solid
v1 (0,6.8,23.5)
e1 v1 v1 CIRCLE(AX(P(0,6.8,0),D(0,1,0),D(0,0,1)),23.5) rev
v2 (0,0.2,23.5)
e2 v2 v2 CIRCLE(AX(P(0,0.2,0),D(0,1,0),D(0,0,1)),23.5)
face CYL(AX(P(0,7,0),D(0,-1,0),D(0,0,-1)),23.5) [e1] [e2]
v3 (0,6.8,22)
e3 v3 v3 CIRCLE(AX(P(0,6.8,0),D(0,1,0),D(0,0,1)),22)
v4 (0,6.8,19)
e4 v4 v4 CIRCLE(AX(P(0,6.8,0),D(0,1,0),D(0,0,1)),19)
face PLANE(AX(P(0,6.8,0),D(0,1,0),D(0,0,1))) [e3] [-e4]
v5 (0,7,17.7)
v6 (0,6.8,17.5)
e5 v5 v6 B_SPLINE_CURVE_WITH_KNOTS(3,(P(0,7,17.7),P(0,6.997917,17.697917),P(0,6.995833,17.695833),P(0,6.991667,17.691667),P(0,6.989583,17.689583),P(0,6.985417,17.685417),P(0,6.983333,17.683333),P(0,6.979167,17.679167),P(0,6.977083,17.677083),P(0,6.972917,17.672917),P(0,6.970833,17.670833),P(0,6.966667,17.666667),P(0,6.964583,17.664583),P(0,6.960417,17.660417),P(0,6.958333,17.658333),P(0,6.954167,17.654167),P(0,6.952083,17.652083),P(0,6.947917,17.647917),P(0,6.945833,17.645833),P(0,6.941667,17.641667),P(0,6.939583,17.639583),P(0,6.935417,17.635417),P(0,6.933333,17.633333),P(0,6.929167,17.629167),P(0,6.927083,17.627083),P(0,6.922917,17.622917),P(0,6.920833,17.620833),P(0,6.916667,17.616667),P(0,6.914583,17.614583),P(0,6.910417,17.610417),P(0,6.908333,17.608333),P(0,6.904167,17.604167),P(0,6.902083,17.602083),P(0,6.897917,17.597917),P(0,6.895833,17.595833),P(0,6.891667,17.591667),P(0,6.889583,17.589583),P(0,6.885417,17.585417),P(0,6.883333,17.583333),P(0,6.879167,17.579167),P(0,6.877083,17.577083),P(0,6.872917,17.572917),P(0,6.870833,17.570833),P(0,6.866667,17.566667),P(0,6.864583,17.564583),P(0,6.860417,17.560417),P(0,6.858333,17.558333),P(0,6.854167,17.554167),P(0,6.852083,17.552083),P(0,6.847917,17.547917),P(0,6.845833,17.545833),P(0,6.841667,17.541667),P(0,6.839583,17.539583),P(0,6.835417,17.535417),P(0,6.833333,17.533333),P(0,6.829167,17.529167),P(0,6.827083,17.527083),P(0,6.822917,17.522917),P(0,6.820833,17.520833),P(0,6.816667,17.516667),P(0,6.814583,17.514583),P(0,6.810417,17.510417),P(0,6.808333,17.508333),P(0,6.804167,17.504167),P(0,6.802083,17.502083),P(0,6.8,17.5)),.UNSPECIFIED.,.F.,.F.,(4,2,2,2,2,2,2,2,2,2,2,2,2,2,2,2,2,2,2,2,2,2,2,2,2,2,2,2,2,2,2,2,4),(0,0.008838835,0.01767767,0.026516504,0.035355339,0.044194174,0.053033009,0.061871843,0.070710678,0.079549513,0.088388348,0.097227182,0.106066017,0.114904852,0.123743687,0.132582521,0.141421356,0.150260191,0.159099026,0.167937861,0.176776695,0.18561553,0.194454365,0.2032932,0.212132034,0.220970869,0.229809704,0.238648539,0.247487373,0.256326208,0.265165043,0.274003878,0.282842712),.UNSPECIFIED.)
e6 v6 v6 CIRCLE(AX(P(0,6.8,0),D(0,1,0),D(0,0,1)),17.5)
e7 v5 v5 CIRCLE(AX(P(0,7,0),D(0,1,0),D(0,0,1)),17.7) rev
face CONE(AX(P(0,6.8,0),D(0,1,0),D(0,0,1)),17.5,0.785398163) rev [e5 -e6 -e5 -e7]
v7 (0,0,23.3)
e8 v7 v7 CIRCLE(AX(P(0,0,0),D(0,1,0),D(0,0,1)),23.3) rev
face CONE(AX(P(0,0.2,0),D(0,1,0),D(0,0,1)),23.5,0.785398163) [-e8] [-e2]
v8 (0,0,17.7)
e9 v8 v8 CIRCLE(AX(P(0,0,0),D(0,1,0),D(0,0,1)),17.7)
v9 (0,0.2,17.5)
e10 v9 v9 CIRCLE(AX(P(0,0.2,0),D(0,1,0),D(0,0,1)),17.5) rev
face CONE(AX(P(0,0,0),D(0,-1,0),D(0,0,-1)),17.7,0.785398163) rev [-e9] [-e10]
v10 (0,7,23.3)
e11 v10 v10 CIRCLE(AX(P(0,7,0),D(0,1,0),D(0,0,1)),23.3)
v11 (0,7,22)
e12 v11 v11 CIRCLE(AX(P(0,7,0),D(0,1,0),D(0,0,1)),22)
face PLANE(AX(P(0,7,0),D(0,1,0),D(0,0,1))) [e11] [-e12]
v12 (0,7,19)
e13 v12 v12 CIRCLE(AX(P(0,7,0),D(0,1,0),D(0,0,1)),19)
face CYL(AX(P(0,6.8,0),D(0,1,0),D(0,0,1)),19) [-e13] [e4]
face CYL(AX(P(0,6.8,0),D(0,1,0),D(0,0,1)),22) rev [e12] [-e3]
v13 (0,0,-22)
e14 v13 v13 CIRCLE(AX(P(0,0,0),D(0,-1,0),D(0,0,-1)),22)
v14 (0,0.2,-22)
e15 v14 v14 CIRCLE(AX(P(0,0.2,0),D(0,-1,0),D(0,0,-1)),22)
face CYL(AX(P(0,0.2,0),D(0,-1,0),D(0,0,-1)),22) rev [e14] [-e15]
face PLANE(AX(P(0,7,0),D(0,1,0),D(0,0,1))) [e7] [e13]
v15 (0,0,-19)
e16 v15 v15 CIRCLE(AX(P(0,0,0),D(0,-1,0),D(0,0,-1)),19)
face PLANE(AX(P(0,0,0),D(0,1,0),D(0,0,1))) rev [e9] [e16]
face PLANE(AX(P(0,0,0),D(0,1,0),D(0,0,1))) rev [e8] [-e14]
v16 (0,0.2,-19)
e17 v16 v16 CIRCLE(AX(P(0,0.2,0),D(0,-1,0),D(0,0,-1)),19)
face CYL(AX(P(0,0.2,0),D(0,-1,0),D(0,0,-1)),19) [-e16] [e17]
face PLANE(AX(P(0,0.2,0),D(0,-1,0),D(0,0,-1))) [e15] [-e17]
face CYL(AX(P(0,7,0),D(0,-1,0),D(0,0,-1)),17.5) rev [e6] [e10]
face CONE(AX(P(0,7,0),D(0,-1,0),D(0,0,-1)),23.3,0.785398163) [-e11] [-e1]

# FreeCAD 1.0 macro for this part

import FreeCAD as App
import Part
import Sketcher
from FreeCAD import Vector
Q = App.Units.Quantity


def edges_at(feature, points):
    """Names of the edges that pass closest to the given points."""
    edges = feature.Shape.Edges
    near = lambda p: min(range(len(edges)), key=lambda i: edges[i].distToShape(Part.Vertex(*p))[0])
    return sorted({f"Edge{near(p) + 1}" for p in points})

doc = App.newDocument("Part")
body = doc.addObject("PartDesign::Body", "Body")

# Sketch on XZ plane
sketch1 = doc.addObject("Sketcher::SketchObject", "Sketch")
body.addObject(sketch1)
sketch1.AttachmentSupport = (doc.XZ_Plane, [""])
sketch1.MapMode = "FlatFace"
sketch1.addGeometry([
    Part.Circle(Vector(0, 0, 0), Vector(0, 0, 1), 24),
    Part.Circle(Vector(0, 0, 0), Vector(0, 0, 1), 18),
], False)
sketch1.addConstraint([
    Sketcher.Constraint("Coincident", 0, 3, -1, 1),
    Sketcher.Constraint("Coincident", 1, 3, -1, 1),
    Sketcher.Constraint("Diameter", 0, Q("47 mm")),
    Sketcher.Constraint("Diameter", 1, Q("35 mm")),
])
pad1 = doc.addObject("PartDesign::Pad", "Pad")
body.addObject(pad1)
pad1.Profile = sketch1
pad1.Length = 7
pad1.Reversed = True

# Sketch on XZ plane
sketch2 = doc.addObject("Sketcher::SketchObject", "Sketch001")
body.addObject(sketch2)
sketch2.AttachmentSupport = (doc.XZ_Plane, [""])
sketch2.MapMode = "FlatFace"
sketch2.AttachmentOffset = App.Placement(Vector(0, 0, -7), App.Rotation())
sketch2.addGeometry([
    Part.Circle(Vector(0, 0, 0), Vector(0, 0, 1), 22),
    Part.Circle(Vector(0, 0, 0), Vector(0, 0, 1), 19),
], False)
sketch2.addConstraint([
    Sketcher.Constraint("Coincident", 0, 3, -1, 1),
    Sketcher.Constraint("Coincident", 1, 3, -1, 1),
    Sketcher.Constraint("Diameter", 0, Q("44 mm")),
    Sketcher.Constraint("Diameter", 1, Q("38 mm")),
])
pocket1 = doc.addObject("PartDesign::Pocket", "Pocket")
body.addObject(pocket1)
pocket1.Profile = sketch2
pocket1.Length = 0.2
pocket1.Reversed = True

# Sketch on XZ plane
sketch3 = doc.addObject("Sketcher::SketchObject", "Sketch002")
body.addObject(sketch3)
sketch3.AttachmentSupport = (doc.XZ_Plane, [""])
sketch3.MapMode = "FlatFace"
sketch3.AttachmentOffset = App.Placement(Vector(0, 0, -0.2), App.Rotation())
sketch3.addGeometry([
    Part.Circle(Vector(0, 0, 0), Vector(0, 0, 1), 22),
    Part.Circle(Vector(0, 0, 0), Vector(0, 0, 1), 19),
], False)
sketch3.addConstraint([
    Sketcher.Constraint("Coincident", 0, 3, -1, 1),
    Sketcher.Constraint("Coincident", 1, 3, -1, 1),
    Sketcher.Constraint("Diameter", 0, Q("44 mm")),
    Sketcher.Constraint("Diameter", 1, Q("38 mm")),
])
pocket2 = doc.addObject("PartDesign::Pocket", "Pocket001")
body.addObject(pocket2)
pocket2.Profile = sketch3
pocket2.Length = 0.2
pocket2.Reversed = True
doc.recompute()

chamfer = doc.addObject("PartDesign::Chamfer", "Chamfer")
body.addObject(chamfer)
chamfer.Base = (pocket2, edges_at(pocket2, [
    (0, 0, -23.5),
    (0, 7, -23.5),
    (0, 0, -17.5),
    (0, 7, -17.5),
]))
chamfer.Size = 0.2

doc.recompute()
